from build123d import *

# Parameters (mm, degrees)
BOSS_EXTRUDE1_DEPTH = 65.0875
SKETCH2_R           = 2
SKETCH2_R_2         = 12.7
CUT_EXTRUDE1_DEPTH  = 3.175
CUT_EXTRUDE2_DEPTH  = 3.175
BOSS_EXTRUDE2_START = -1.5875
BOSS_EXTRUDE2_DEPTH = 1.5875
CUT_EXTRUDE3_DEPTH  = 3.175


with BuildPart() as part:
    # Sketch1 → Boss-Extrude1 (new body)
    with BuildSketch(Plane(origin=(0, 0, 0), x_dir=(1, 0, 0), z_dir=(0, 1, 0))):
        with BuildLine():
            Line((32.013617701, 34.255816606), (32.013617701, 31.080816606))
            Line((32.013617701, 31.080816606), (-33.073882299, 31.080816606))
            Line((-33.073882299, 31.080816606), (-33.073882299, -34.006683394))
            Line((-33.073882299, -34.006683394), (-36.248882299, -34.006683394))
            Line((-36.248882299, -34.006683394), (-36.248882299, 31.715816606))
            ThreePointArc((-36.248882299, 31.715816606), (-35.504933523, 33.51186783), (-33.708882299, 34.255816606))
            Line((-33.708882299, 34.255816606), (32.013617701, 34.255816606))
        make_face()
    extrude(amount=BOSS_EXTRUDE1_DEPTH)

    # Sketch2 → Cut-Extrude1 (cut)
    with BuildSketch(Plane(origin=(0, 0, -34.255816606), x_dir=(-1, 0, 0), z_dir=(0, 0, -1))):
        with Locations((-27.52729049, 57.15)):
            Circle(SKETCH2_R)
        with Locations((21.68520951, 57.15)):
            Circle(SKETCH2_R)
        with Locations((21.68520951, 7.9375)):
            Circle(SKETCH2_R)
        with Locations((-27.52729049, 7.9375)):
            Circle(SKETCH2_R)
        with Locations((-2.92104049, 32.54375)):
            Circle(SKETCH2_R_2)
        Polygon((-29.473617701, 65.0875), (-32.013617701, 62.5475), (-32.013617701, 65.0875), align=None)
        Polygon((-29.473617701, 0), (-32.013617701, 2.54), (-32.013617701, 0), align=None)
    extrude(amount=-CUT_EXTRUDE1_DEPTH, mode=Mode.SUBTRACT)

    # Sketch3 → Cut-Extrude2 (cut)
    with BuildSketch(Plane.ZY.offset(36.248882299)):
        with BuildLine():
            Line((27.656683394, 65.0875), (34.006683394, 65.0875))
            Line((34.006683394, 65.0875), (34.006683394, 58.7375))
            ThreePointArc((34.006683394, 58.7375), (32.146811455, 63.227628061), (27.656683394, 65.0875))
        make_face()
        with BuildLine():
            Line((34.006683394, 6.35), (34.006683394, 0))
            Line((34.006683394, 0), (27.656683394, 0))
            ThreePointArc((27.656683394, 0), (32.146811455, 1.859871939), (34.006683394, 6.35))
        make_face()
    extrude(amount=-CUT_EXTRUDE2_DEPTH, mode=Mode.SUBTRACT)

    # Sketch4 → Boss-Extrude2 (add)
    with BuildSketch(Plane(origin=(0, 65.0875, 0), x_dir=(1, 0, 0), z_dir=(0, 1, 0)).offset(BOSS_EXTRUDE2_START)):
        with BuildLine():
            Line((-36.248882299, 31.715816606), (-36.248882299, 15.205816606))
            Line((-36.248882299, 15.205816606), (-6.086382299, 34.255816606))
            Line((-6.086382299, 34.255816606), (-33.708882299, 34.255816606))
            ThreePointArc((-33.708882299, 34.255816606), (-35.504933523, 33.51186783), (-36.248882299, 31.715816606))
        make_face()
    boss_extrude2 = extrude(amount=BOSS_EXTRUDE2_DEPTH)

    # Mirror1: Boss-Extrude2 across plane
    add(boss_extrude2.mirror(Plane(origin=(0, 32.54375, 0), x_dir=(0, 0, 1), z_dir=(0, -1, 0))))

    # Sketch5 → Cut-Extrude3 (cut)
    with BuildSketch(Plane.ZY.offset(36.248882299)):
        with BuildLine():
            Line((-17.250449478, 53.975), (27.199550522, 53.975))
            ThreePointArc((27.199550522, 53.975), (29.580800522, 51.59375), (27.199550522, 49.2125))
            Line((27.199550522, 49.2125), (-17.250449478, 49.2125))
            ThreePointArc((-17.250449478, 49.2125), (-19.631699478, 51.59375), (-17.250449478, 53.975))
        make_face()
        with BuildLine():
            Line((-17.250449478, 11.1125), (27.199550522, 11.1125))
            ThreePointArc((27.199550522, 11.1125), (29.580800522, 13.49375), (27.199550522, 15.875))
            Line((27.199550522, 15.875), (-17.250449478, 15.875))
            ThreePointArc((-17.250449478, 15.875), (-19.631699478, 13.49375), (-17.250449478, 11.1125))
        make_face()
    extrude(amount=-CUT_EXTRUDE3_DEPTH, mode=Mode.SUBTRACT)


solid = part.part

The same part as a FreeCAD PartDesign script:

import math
import FreeCAD as App
import Part
import Sketcher
from FreeCAD import Vector
Q = App.Units.Quantity

doc = App.newDocument("Part")
body = doc.addObject("PartDesign::Body", "Body")

# Sketch on XZ plane
sketch1 = body.newObject("Sketcher::SketchObject", "Sketch")
sketch1.AttachmentSupport = (doc.getObject("XZ_Plane"), [""])
sketch1.MapMode = "FlatFace"
sketch1.addGeometry(Part.LineSegment(Vector(32, -31.1, 0), Vector(32, -34.3, 0)), False)
sketch1.addGeometry(Part.LineSegment(Vector(32, -34.3, 0), Vector(-33.7, -34.3, 0)), False)
sketch1.addGeometry(Part.ArcOfCircle(Part.Circle(Vector(-33.7, -31.7, 0), Vector(0, 0, 1), 2.5), math.radians(-180), math.radians(-90)), False)
sketch1.addGeometry(Part.LineSegment(Vector(-36.2, -31.7, 0), Vector(-36.2, 34, 0)), False)
sketch1.addGeometry(Part.LineSegment(Vector(-36.2, 34, 0), Vector(-33.1, 34, 0)), False)
sketch1.addGeometry(Part.LineSegment(Vector(-33.1, 34, 0), Vector(-33.1, -31.1, 0)), False)
sketch1.addGeometry(Part.LineSegment(Vector(-33.1, -31.1, 0), Vector(32, -31.1, 0)), False)
sketch1.addConstraint(Sketcher.Constraint("Coincident", 0, 2, 1, 1))
sketch1.addConstraint(Sketcher.Constraint("Tangent", 1, 2, 2, 2))
sketch1.addConstraint(Sketcher.Constraint("Tangent", 2, 1, 3, 1))
sketch1.addConstraint(Sketcher.Constraint("Coincident", 3, 2, 4, 1))
sketch1.addConstraint(Sketcher.Constraint("Coincident", 4, 2, 5, 1))
sketch1.addConstraint(Sketcher.Constraint("Coincident", 5, 2, 6, 1))
sketch1.addConstraint(Sketcher.Constraint("Coincident", 6, 2, 0, 1))
sketch1.addConstraint(Sketcher.Constraint("Vertical", 0))
sketch1.addConstraint(Sketcher.Constraint("Horizontal", 1))
sketch1.addConstraint(Sketcher.Constraint("Vertical", 3))
sketch1.addConstraint(Sketcher.Constraint("Horizontal", 4))
sketch1.addConstraint(Sketcher.Constraint("Vertical", 5))
sketch1.addConstraint(Sketcher.Constraint("Horizontal", 6))
sketch1.addConstraint(Sketcher.Constraint("Equal", 4, 0))
sketch1.addConstraint(Sketcher.Constraint("Equal", 1, 3))
sketch1.addConstraint(Sketcher.Constraint("Radius", 2, Q("0.1 in")))
sketch1.addConstraint(Sketcher.Constraint("DistanceX", 4, 1, 4, 2, Q("0.125 in")))
sketch1.addConstraint(Sketcher.Constraint("DistanceX", 6, 1, 6, 2, Q("2.5625 in")))
sketch1.addConstraint(Sketcher.Constraint("DistanceX", 2, 3, -1, 1, 33.708882))
sketch1.addConstraint(Sketcher.Constraint("DistanceY", 2, 3, -1, 1, 31.715817))
pad1 = body.newObject("PartDesign::Pad", "Pad")
pad1.Profile = sketch1
pad1.Length = Q("2.5625 in")
pad1.Reversed = True

# Sketch on XY plane
sketch2 = body.newObject("Sketcher::SketchObject", "Sketch001")
sketch2.AttachmentSupport = (doc.getObject("XY_Plane"), [""])
sketch2.MapMode = "FlatFace"
sketch2.AttachmentOffset = App.Placement(Vector(0, 0, -34.255817), App.Rotation())
sketch2.addGeometry(Part.Circle(Vector(27.5, 57.1, 0), Vector(0, 0, 1), 2), False)
sketch2.addGeometry(Part.Circle(Vector(-21.7, 57.1, 0), Vector(0, 0, 1), 2), False)
sketch2.addGeometry(Part.Circle(Vector(-21.7, 7.9, 0), Vector(0, 0, 1), 2), False)
sketch2.addGeometry(Part.Circle(Vector(27.5, 7.9, 0), Vector(0, 0, 1), 2), False)
sketch2.addGeometry(Part.Circle(Vector(2.9, 32.5, 0), Vector(0, 0, 1), 12.7), False)
sketch2.addGeometry(Part.LineSegment(Vector(32, 62.5, 0), Vector(29.5, 65.1, 0)), False)
sketch2.addGeometry(Part.LineSegment(Vector(29.5, 65.1, 0), Vector(32, 65.1, 0)), False)
sketch2.addGeometry(Part.LineSegment(Vector(32, 65.1, 0), Vector(32, 62.5, 0)), False)
sketch2.addGeometry(Part.LineSegment(Vector(29.5, 0, 0), Vector(32, 2.5, 0)), False)
sketch2.addGeometry(Part.LineSegment(Vector(32, 2.5, 0), Vector(32, 0, 0)), False)
sketch2.addGeometry(Part.LineSegment(Vector(32, 0, 0), Vector(29.5, 0, 0)), False)
sketch2.addConstraint(Sketcher.Constraint("Coincident", 5, 2, 6, 1))
sketch2.addConstraint(Sketcher.Constraint("Coincident", 6, 2, 7, 1))
sketch2.addConstraint(Sketcher.Constraint("Coincident", 7, 2, 5, 1))
sketch2.addConstraint(Sketcher.Constraint("Coincident", 8, 2, 9, 1))
sketch2.addConstraint(Sketcher.Constraint("Coincident", 9, 2, 10, 1))
sketch2.addConstraint(Sketcher.Constraint("Coincident", 10, 2, 8, 1))
sketch2.addConstraint(Sketcher.Constraint("Horizontal", 6))
sketch2.addConstraint(Sketcher.Constraint("Vertical", 7))
sketch2.addConstraint(Sketcher.Constraint("Vertical", 9))
sketch2.addConstraint(Sketcher.Constraint("Horizontal", 10))
sketch2.addConstraint(Sketcher.Constraint("Equal", 0, 1))
sketch2.addConstraint(Sketcher.Constraint("Equal", 1, 2))
sketch2.addConstraint(Sketcher.Constraint("Equal", 2, 3))
sketch2.addConstraint(Sketcher.Constraint("PointOnObject", 9, 2, -1))
sketch2.addConstraint(Sketcher.Constraint("Perpendicular", 5, 8))
sketch2.addConstraint(Sketcher.Constraint("Horizontal", 0, 3, 1, 3))
sketch2.addConstraint(Sketcher.Constraint("Horizontal", 2, 3, 3, 3))
sketch2.addConstraint(Sketcher.Constraint("Vertical", 1, 3, 2, 3))
sketch2.addConstraint(Sketcher.Constraint("Vertical", 0, 3, 3, 3))
sketch2.addConstraint(Sketcher.Constraint("Vertical", 7, 2, 8, 2))
sketch2.addConstraint(Sketcher.Constraint("Vertical", 5, 2, 10, 2))
sketch2.addConstraint(Sketcher.Constraint("Equal", 10, 7))
sketch2.addConstraint(Sketcher.Constraint("Diameter", 4, Q("1 in")))
sketch2.addConstraint(Sketcher.Constraint("DistanceX", 6, 1, 6, 2, Q("0.1 in")))
sketch2.addConstraint(Sketcher.Constraint("Diameter", 0, 4.0))
sketch2.addConstraint(Sketcher.Constraint("DistanceY", -1, 1, 0, 3, Q("2.25 in")))
sketch2.addConstraint(Sketcher.Constraint("DistanceY", 3, 3, 5, 2, Q("2.25 in")))
sketch2.addConstraint(Sketcher.Constraint("DistanceY", -1, 1, 2, 3, Q("0.3125 in")))
sketch2.addConstraint(Sketcher.Constraint("DistanceY", -1, 1, 4, 3, Q("1.28125 in")))
sketch2.addConstraint(Sketcher.Constraint("DistanceX", 1, 3, 0, 3, Q("1.9375 in")))
sketch2.addConstraint(Sketcher.Constraint("DistanceX", 4, 3, 0, 3, Q("0.96875 in")))
sketch2.addConstraint(Sketcher.Constraint("DistanceX", -1, 1, 0, 3, 27.52729))
sketch2.addConstraint(Sketcher.Constraint("DistanceX", -1, 1, 5, 2, 29.473618))
pocket1 = body.newObject("PartDesign::Pocket", "Pocket")
pocket1.Profile = sketch2
pocket1.Length = Q("0.125 in")
pocket1.Reversed = True

# Sketch on YZ plane
sketch3 = body.newObject("Sketcher::SketchObject", "Sketch002")
sketch3.AttachmentSupport = (doc.getObject("YZ_Plane"), [""])
sketch3.MapMode = "FlatFace"
sketch3.AttachmentOffset = App.Placement(Vector(0, 0, -36.248882), App.Rotation())
sketch3.addGeometry(Part.LineSegment(Vector(65, 34, 0), Vector(65, 28, 0)), False)
sketch3.addGeometry(Part.ArcOfCircle(Part.Circle(Vector(59, 28, 0), Vector(0, 0, 1), 6), math.radians(0), math.radians(90)), False)
sketch3.addGeometry(Part.LineSegment(Vector(59, 34, 0), Vector(65, 34, 0)), False)
sketch3.addGeometry(Part.LineSegment(Vector(0, 34, 0), Vector(6, 34, 0)), False)
sketch3.addGeometry(Part.ArcOfCircle(Part.Circle(Vector(6, 28, 0), Vector(0, 0, 1), 6), math.radians(90), math.radians(180)), False)
sketch3.addGeometry(Part.LineSegment(Vector(0, 28, 0), Vector(0, 34, 0)), False)
sketch3.addConstraint(Sketcher.Constraint("Tangent", 0, 2, 1, 1))
sketch3.addConstraint(Sketcher.Constraint("Tangent", 1, 2, 2, 1))
sketch3.addConstraint(Sketcher.Constraint("Coincident", 2, 2, 0, 1))
sketch3.addConstraint(Sketcher.Constraint("Tangent", 3, 2, 4, 1))
sketch3.addConstraint(Sketcher.Constraint("Tangent", 4, 2, 5, 1))
sketch3.addConstraint(Sketcher.Constraint("Coincident", 5, 2, 3, 1))
sketch3.addConstraint(Sketcher.Constraint("Vertical", 0))
sketch3.addConstraint(Sketcher.Constraint("Horizontal", 2))
sketch3.addConstraint(Sketcher.Constraint("Horizontal", 3))
sketch3.addConstraint(Sketcher.Constraint("Vertical", 5))
sketch3.addConstraint(Sketcher.Constraint("Equal", 1, 4))
sketch3.addConstraint(Sketcher.Constraint("PointOnObject", 4, 2, -2))
sketch3.addConstraint(Sketcher.Constraint("Horizontal", 1, 3, 4, 3))
sketch3.addConstraint(Sketcher.Constraint("Radius", 1, Q("0.25 in")))
sketch3.addConstraint(Sketcher.Constraint("DistanceX", -1, 1, 1, 3, Q("2.3125 in")))
sketch3.addConstraint(Sketcher.Constraint("DistanceY", -1, 1, 1, 3, 27.656683))
pocket2 = body.newObject("PartDesign::Pocket", "Pocket001")
pocket2.Profile = sketch3
pocket2.Length = Q("0.125 in")
pocket2.Reversed = True

# Sketch on XZ plane
sketch4 = body.newObject("Sketcher::SketchObject", "Sketch003")
sketch4.AttachmentSupport = (doc.getObject("XZ_Plane"), [""])
sketch4.MapMode = "FlatFace"
sketch4.AttachmentOffset = App.Placement(Vector(0, 0, -2.5 * 25.4), App.Rotation())
sketch4.addGeometry(Part.LineSegment(Vector(-36.2, -31.7, 0), Vector(-36.2, -15.2, 0)), False)
sketch4.addGeometry(Part.LineSegment(Vector(-36.2, -15.2, 0), Vector(-6.1, -34.3, 0)), False)
sketch4.addGeometry(Part.LineSegment(Vector(-6.1, -34.3, 0), Vector(-33.7, -34.3, 0)), False)
sketch4.addGeometry(Part.ArcOfCircle(Part.Circle(Vector(-33.7, -31.7, 0), Vector(0, 0, 1), 2.5), math.radians(-180), math.radians(-90)), False)
sketch4.addConstraint(Sketcher.Constraint("Coincident", 0, 2, 1, 1))
sketch4.addConstraint(Sketcher.Constraint("Coincident", 1, 2, 2, 1))
sketch4.addConstraint(Sketcher.Constraint("Tangent", 2, 2, 3, 2))
sketch4.addConstraint(Sketcher.Constraint("Tangent", 3, 1, 0, 1))
sketch4.addConstraint(Sketcher.Constraint("Vertical", 0))
sketch4.addConstraint(Sketcher.Constraint("Horizontal", 2))
sketch4.addConstraint(Sketcher.Constraint("Radius", 3, Q("0.1 in")))
sketch4.addConstraint(Sketcher.Constraint("DistanceY", 0, 1, 0, 2, Q("0.65 in")))
sketch4.addConstraint(Sketcher.Constraint("DistanceX", 2, 2, 2, 1, Q("1.0875 in")))
sketch4.addConstraint(Sketcher.Constraint("DistanceX", 3, 3, -1, 1, 33.708882))
sketch4.addConstraint(Sketcher.Constraint("DistanceY", 3, 3, -1, 1, 31.715817))
pad2 = body.newObject("PartDesign::Pad", "Pad001")
pad2.Profile = sketch4
pad2.Length = Q("0.0625 in")
pad2.Reversed = True
doc.recompute()

datumplane = body.newObject("PartDesign::Plane", "DatumPlane")
datumplane.AttachmentSupport = (doc.getObject("XZ_Plane"), [""])
datumplane.MapMode = "FlatFace"
datumplane.AttachmentOffset = App.Placement(Vector(0, 0, -1.28125 * 25.4), App.Rotation())
mirrored = body.newObject("PartDesign::Mirrored", "Mirrored")
mirrored.Originals = [pad2]
mirrored.MirrorPlane = (datumplane, [""])
body.Tip = mirrored

# Sketch on YZ plane
sketch5 = body.newObject("Sketcher::SketchObject", "Sketch004")
sketch5.AttachmentSupport = (doc.getObject("YZ_Plane"), [""])
sketch5.MapMode = "FlatFace"
sketch5.AttachmentOffset = App.Placement(Vector(0, 0, -36.248882), App.Rotation())
sketch5.addGeometry(Part.LineSegment(Vector(54, 27.2, 0), Vector(54, -17.3, 0)), False)
sketch5.addGeometry(Part.ArcOfCircle(Part.Circle(Vector(51.6, -17.3, 0), Vector(0, 0, 1), 2.4), math.radians(180), math.radians(360)), False)
sketch5.addGeometry(Part.LineSegment(Vector(49.2, -17.3, 0), Vector(49.2, 27.2, 0)), False)
sketch5.addGeometry(Part.ArcOfCircle(Part.Circle(Vector(51.6, 27.2, 0), Vector(0, 0, 1), 2.4), math.radians(0), math.radians(180)), False)
sketch5.addGeometry(Part.LineSegment(Vector(11.1, -17.3, 0), Vector(11.1, 27.2, 0)), False)
sketch5.addGeometry(Part.ArcOfCircle(Part.Circle(Vector(13.5, 27.2, 0), Vector(0, 0, 1), 2.4), math.radians(0), math.radians(180)), False)
sketch5.addGeometry(Part.LineSegment(Vector(15.9, 27.2, 0), Vector(15.9, -17.3, 0)), False)
sketch5.addGeometry(Part.ArcOfCircle(Part.Circle(Vector(13.5, -17.3, 0), Vector(0, 0, 1), 2.4), math.radians(180), math.radians(360)), False)
sketch5.addConstraint(Sketcher.Constraint("Tangent", 0, 2, 1, 2))
sketch5.addConstraint(Sketcher.Constraint("Tangent", 1, 1, 2, 1))
sketch5.addConstraint(Sketcher.Constraint("Tangent", 2, 2, 3, 2))
sketch5.addConstraint(Sketcher.Constraint("Tangent", 3, 1, 0, 1))
sketch5.addConstraint(Sketcher.Constraint("Tangent", 4, 2, 5, 2))
sketch5.addConstraint(Sketcher.Constraint("Tangent", 5, 1, 6, 1))
sketch5.addConstraint(Sketcher.Constraint("Tangent", 6, 2, 7, 2))
sketch5.addConstraint(Sketcher.Constraint("Tangent", 7, 1, 4, 1))
sketch5.addConstraint(Sketcher.Constraint("Vertical", 0))
sketch5.addConstraint(Sketcher.Constraint("Vertical", 2))
sketch5.addConstraint(Sketcher.Constraint("Vertical", 4))
sketch5.addConstraint(Sketcher.Constraint("Vertical", 6))
sketch5.addConstraint(Sketcher.Constraint("Equal", 3, 5))
sketch5.addConstraint(Sketcher.Constraint("Horizontal", 3, 3, 5, 3))
sketch5.addConstraint(Sketcher.Constraint("Horizontal", 1, 3, 7, 3))
sketch5.addConstraint(Sketcher.Constraint("Radius", 1, Q("0.09375 in")))
sketch5.addConstraint(Sketcher.Constraint("DistanceY", 0, 2, 0, 1, Q("1.75 in")))
sketch5.addConstraint(Sketcher.Constraint("DistanceX", 5, 3, 3, 3, Q("1.5 in")))
sketch5.addConstraint(Sketcher.Constraint("DistanceX", -1, 1, 1, 3, Q("2.03125 in")))
sketch5.addConstraint(Sketcher.Constraint("DistanceY", 1, 3, -1, 1, 17.250449))
pocket3 = body.newObject("PartDesign::Pocket", "Pocket002")
pocket3.Profile = sketch5
pocket3.Length = Q("0.125 in")
pocket3.Reversed = True

doc.recompute()
